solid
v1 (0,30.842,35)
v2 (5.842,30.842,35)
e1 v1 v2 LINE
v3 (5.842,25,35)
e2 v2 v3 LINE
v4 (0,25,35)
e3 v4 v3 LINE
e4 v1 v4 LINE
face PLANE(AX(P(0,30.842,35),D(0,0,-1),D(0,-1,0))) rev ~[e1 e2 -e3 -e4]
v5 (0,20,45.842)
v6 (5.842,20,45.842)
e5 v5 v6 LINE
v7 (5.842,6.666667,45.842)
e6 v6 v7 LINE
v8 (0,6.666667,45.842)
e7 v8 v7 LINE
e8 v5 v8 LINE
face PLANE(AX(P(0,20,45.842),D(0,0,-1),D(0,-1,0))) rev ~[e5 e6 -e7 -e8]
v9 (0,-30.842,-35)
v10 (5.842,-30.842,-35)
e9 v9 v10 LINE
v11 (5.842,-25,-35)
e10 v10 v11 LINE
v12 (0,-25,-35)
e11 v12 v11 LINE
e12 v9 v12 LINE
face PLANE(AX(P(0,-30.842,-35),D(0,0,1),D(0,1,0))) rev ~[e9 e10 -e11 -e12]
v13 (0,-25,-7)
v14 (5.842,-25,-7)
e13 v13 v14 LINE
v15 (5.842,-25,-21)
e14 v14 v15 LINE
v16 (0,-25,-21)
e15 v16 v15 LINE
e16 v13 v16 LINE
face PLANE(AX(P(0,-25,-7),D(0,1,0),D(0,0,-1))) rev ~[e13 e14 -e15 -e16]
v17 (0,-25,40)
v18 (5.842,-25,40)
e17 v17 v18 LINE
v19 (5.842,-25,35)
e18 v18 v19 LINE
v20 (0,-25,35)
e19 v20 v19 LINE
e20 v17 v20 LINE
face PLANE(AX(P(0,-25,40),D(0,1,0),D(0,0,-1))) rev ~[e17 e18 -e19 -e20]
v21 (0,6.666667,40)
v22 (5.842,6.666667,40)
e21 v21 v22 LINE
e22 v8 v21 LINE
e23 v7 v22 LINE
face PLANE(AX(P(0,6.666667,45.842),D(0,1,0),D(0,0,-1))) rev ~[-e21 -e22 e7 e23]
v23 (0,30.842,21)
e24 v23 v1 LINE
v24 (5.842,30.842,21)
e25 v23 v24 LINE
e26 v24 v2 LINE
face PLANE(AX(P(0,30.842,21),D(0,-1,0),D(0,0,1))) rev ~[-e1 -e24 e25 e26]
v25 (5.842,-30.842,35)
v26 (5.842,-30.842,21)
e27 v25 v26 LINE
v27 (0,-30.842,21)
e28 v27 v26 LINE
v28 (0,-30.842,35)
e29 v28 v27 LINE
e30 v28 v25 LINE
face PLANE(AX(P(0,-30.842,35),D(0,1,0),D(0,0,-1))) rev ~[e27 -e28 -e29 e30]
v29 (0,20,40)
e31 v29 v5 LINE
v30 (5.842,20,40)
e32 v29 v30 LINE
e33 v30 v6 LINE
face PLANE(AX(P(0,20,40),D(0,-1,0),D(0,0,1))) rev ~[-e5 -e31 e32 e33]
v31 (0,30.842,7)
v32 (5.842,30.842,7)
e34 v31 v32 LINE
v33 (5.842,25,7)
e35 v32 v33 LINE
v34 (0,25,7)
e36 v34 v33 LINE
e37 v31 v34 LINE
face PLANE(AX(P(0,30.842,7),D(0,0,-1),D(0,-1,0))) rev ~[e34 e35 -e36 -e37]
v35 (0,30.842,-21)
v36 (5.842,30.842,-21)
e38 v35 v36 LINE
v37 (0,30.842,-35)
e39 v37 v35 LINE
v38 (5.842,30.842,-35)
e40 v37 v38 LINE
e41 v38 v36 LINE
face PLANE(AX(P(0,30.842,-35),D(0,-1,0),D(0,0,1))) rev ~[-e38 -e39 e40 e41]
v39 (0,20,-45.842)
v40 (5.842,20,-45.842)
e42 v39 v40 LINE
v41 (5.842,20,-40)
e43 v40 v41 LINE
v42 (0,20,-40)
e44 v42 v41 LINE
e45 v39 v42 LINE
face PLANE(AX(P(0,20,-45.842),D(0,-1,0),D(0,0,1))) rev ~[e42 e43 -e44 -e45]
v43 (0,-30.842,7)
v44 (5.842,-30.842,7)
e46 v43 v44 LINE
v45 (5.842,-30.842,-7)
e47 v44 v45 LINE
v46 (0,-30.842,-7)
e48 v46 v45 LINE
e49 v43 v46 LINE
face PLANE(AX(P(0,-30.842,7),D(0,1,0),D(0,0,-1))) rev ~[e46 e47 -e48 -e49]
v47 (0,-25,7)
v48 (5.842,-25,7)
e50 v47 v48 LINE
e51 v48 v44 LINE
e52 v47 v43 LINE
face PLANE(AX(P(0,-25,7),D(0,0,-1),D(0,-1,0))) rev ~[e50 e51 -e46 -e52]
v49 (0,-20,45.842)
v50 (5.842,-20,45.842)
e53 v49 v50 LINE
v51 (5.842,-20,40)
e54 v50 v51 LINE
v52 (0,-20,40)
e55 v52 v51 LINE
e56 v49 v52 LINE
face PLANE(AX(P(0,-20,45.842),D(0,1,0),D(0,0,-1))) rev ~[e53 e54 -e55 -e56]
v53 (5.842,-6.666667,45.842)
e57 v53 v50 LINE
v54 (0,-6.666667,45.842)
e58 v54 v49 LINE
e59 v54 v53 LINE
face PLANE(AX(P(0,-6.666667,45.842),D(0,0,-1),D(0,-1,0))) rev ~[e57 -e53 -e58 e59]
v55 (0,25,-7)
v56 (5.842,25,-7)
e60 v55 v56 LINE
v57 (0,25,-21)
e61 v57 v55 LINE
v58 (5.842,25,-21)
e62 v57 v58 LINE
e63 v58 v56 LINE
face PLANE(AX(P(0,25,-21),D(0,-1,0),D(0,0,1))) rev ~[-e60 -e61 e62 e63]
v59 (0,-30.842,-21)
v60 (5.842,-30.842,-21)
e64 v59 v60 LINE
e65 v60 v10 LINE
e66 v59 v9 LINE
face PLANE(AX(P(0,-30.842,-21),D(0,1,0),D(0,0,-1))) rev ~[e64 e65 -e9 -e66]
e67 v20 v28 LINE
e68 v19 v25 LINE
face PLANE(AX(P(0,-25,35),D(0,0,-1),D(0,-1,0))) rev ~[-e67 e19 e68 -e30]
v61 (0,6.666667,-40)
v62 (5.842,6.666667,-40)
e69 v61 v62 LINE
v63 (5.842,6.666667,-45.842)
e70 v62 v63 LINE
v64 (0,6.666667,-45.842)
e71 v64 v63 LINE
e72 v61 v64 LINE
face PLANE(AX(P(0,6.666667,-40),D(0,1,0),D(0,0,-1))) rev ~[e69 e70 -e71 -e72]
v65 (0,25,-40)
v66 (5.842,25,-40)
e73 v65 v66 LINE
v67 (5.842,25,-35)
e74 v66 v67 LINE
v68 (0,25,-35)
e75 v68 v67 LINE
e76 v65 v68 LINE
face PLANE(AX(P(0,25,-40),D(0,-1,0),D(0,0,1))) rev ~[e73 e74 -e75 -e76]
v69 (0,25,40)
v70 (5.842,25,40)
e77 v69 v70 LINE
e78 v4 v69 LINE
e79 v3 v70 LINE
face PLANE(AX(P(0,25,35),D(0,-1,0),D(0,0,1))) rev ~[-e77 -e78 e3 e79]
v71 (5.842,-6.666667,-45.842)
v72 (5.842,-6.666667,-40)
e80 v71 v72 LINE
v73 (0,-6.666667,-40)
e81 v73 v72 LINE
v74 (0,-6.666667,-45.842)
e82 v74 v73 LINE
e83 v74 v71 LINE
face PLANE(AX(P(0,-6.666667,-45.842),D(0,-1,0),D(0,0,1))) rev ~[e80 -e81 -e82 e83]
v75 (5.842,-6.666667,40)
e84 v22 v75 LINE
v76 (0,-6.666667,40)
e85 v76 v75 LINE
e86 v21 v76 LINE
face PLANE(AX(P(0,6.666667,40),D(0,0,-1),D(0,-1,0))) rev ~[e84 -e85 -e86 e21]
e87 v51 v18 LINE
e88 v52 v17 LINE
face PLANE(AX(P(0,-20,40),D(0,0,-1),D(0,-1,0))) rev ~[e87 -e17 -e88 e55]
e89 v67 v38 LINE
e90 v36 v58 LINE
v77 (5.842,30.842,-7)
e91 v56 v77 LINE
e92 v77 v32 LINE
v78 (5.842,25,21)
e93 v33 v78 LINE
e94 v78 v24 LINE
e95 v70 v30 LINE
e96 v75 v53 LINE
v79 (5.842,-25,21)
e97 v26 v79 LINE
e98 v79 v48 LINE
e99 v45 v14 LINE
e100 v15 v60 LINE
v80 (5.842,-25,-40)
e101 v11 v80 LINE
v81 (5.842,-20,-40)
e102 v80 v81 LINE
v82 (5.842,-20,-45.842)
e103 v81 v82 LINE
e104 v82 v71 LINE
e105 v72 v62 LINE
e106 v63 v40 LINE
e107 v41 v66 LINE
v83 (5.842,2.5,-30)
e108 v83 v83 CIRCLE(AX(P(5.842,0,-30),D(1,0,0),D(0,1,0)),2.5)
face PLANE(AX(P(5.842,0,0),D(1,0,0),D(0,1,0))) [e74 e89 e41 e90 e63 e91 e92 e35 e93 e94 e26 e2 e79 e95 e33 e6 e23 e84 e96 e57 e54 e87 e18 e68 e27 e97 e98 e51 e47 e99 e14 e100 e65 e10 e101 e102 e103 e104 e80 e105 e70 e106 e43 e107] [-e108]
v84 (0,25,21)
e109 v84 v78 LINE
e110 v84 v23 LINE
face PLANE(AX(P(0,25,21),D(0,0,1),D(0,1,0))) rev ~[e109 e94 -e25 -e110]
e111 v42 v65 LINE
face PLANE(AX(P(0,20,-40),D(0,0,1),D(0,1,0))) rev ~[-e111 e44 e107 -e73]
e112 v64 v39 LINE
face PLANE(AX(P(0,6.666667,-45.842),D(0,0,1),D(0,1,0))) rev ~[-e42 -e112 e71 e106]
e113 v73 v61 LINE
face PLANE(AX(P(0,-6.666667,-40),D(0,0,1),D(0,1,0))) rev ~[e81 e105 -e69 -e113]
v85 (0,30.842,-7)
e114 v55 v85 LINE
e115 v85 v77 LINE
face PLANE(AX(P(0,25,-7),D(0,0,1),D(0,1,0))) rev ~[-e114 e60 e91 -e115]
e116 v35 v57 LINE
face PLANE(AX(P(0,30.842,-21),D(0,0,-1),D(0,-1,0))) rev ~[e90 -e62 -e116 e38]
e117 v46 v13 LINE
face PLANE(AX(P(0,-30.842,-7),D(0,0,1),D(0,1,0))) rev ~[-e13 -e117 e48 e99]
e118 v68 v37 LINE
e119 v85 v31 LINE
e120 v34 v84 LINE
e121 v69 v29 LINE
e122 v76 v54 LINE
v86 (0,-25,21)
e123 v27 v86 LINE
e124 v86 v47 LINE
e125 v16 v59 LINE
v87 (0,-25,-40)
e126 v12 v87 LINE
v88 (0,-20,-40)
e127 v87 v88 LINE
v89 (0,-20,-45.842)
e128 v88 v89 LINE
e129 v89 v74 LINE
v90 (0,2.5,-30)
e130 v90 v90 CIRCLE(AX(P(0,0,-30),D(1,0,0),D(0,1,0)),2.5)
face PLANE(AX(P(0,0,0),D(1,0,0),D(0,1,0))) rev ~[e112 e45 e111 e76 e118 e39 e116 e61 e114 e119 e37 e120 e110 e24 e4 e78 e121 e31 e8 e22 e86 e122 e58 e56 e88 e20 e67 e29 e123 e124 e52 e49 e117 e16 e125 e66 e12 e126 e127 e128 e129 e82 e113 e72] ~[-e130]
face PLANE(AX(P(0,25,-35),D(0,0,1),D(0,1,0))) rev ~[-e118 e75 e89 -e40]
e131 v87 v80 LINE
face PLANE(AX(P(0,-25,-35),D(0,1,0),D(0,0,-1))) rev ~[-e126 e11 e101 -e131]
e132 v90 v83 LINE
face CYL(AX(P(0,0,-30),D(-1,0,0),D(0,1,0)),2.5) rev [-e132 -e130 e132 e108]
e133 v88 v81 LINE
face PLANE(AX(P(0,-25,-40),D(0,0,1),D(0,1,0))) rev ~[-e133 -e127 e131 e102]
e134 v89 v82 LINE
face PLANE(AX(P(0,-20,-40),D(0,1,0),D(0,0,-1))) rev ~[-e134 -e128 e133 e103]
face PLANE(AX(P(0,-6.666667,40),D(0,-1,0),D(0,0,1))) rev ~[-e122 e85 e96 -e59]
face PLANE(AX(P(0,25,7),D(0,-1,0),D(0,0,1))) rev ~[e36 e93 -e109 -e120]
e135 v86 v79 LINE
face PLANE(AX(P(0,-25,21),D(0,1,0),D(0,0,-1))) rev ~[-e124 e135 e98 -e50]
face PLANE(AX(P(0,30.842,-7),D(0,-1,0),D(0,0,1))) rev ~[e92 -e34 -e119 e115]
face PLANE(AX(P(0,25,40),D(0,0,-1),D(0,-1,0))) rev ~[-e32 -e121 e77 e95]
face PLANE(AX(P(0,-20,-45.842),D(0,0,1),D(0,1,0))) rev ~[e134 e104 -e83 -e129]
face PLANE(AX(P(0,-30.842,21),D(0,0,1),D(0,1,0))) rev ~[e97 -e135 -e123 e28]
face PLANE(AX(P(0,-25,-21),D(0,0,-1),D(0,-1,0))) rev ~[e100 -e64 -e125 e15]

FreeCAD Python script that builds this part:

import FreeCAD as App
import Part
import Sketcher
from FreeCAD import Vector


def add_polygon(sketch, points):
    """Adds a closed chain of lines whose ends are joined by coincident constraints."""
    first, n = sketch.GeometryCount, len(points)
    for a, b in zip(points, points[1:] + points[:1]):
        sketch.addGeometry(Part.LineSegment(App.Vector(*a, 0), App.Vector(*b, 0)), False)
    for i in range(n):
        sketch.addConstraint(Sketcher.Constraint("Coincident", first + i, 2, first + (i + 1) % n, 1))

doc = App.newDocument("Part")
body = doc.addObject("PartDesign::Body", "Body")

# Sketch on YZ plane
sketch1 = doc.addObject("Sketcher::SketchObject", "Sketch")
body.addObject(sketch1)
sketch1.AttachmentSupport = (doc.YZ_Plane, [""])
sketch1.MapMode = "FlatFace"
add_polygon(sketch1, [(-25, -35), (-25, -40), (-20, -40), (-20, -45.8), (-6.7, -45.8), (-6.7, -40), (6.7, -40), (6.7, -45.8), (20, -45.8), (20, -40), (25, -40), (25, -35), (30.8, -35), (30.8, -21), (25, -21), (25, -7), (30.8, -7), (30.8, 7), (25, 7), (25, 21), (30.8, 21), (30.8, 35), (25, 35), (25, 40), (20, 40), (20, 45.8), (6.7, 45.8), (6.7, 40), (-6.7, 40), (-6.7, 45.8), (-20, 45.8), (-20, 40), (-25, 40), (-25, 35), (-30.8, 35), (-30.8, 21), (-25, 21), (-25, 7), (-30.8, 7), (-30.8, -7), (-25, -7), (-25, -21), (-30.8, -21), (-30.8, -35)])  # lines 0-43
sketch1.addGeometry(Part.Circle(Vector(0, -30, 0), Vector(0, 0, 1), 2.5), False)  # 44
sketch1.addConstraint(Sketcher.Constraint("Vertical", 0))
sketch1.addConstraint(Sketcher.Constraint("Horizontal", 1))
sketch1.addConstraint(Sketcher.Constraint("Vertical", 2))
sketch1.addConstraint(Sketcher.Constraint("Horizontal", 3))
sketch1.addConstraint(Sketcher.Constraint("Vertical", 4))
sketch1.addConstraint(Sketcher.Constraint("Horizontal", 5))
sketch1.addConstraint(Sketcher.Constraint("Vertical", 6))
sketch1.addConstraint(Sketcher.Constraint("Horizontal", 7))
sketch1.addConstraint(Sketcher.Constraint("Vertical", 8))
sketch1.addConstraint(Sketcher.Constraint("Horizontal", 9))
sketch1.addConstraint(Sketcher.Constraint("Vertical", 10))
sketch1.addConstraint(Sketcher.Constraint("Horizontal", 11))
sketch1.addConstraint(Sketcher.Constraint("Vertical", 12))
sketch1.addConstraint(Sketcher.Constraint("Horizontal", 13))
sketch1.addConstraint(Sketcher.Constraint("Vertical", 14))
sketch1.addConstraint(Sketcher.Constraint("Horizontal", 15))
sketch1.addConstraint(Sketcher.Constraint("Vertical", 16))
sketch1.addConstraint(Sketcher.Constraint("Horizontal", 17))
sketch1.addConstraint(Sketcher.Constraint("Vertical", 18))
sketch1.addConstraint(Sketcher.Constraint("Horizontal", 19))
sketch1.addConstraint(Sketcher.Constraint("Vertical", 20))
sketch1.addConstraint(Sketcher.Constraint("Horizontal", 21))
sketch1.addConstraint(Sketcher.Constraint("Vertical", 22))
sketch1.addConstraint(Sketcher.Constraint("Horizontal", 23))
sketch1.addConstraint(Sketcher.Constraint("Vertical", 24))
sketch1.addConstraint(Sketcher.Constraint("Horizontal", 25))
sketch1.addConstraint(Sketcher.Constraint("Vertical", 26))
sketch1.addConstraint(Sketcher.Constraint("Horizontal", 27))
sketch1.addConstraint(Sketcher.Constraint("Vertical", 28))
sketch1.addConstraint(Sketcher.Constraint("Horizontal", 29))
sketch1.addConstraint(Sketcher.Constraint("Vertical", 30))
sketch1.addConstraint(Sketcher.Constraint("Horizontal", 31))
sketch1.addConstraint(Sketcher.Constraint("Vertical", 32))
sketch1.addConstraint(Sketcher.Constraint("Horizontal", 33))
sketch1.addConstraint(Sketcher.Constraint("Vertical", 34))
sketch1.addConstraint(Sketcher.Constraint("Horizontal", 35))
sketch1.addConstraint(Sketcher.Constraint("Vertical", 36))
sketch1.addConstraint(Sketcher.Constraint("Horizontal", 37))
sketch1.addConstraint(Sketcher.Constraint("Vertical", 38))
sketch1.addConstraint(Sketcher.Constraint("Horizontal", 39))
sketch1.addConstraint(Sketcher.Constraint("Vertical", 40))
sketch1.addConstraint(Sketcher.Constraint("Horizontal", 41))
sketch1.addConstraint(Sketcher.Constraint("Vertical", 42))
sketch1.addConstraint(Sketcher.Constraint("Horizontal", 43))
sketch1.addConstraint(Sketcher.Constraint("Symmetric", 0, 2, 22, 2, -1, 1))
sketch1.addConstraint(Sketcher.Constraint("Symmetric", 2, 2, 24, 2, -1, 1))
sketch1.addConstraint(Sketcher.Constraint("Symmetric", 4, 2, 26, 2, -1, 1))
sketch1.addConstraint(Sketcher.Constraint("Symmetric", 6, 2, 28, 2, -1, 1))
sketch1.addConstraint(Sketcher.Constraint("Symmetric", 8, 2, 30, 2, -1, 1))
sketch1.addConstraint(Sketcher.Constraint("Symmetric", 10, 2, 32, 2, -1, 1))
sketch1.addConstraint(Sketcher.Constraint("Symmetric", 12, 2, 34, 2, -1, 1))
sketch1.addConstraint(Sketcher.Constraint("Symmetric", 14, 2, 36, 2, -1, 1))
sketch1.addConstraint(Sketcher.Constraint("Symmetric", 16, 2, 38, 2, -1, 1))
sketch1.addConstraint(Sketcher.Constraint("Symmetric", 18, 2, 40, 2, -1, 1))
sketch1.addConstraint(Sketcher.Constraint("Symmetric", 20, 2, 42, 2, -1, 1))
sketch1.addConstraint(Sketcher.Constraint("Symmetric", 3, 2, 6, 2, -2))
sketch1.addConstraint(Sketcher.Constraint("Symmetric", 1, 2, 8, 2, -2))
sketch1.addConstraint(Sketcher.Constraint("Symmetric", 21, 2, 32, 2, -2))
sketch1.addConstraint(Sketcher.Constraint("Symmetric", 19, 2, 34, 2, -2))
sketch1.addConstraint(Sketcher.Constraint("Symmetric", 17, 2, 36, 2, -2))
sketch1.addConstraint(Sketcher.Constraint("PointOnObject", 44, 3, -2))
sketch1.addConstraint(Sketcher.Constraint("Horizontal", 1, 2, 4, 2))
sketch1.addConstraint(Sketcher.Constraint("Vertical", 10, 2, 13, 2))
sketch1.addConstraint(Sketcher.Constraint("Vertical", 12, 2, 15, 2))
sketch1.addConstraint(Sketcher.Constraint("Equal", 3, 5))
sketch1.addConstraint(Sketcher.Constraint("Equal", 31, 0))
sketch1.addConstraint(Sketcher.Constraint("Equal", 43, 2))
sketch1.addConstraint(Sketcher.Constraint("Equal", 12, 14))
sketch1.addConstraint(Sketcher.Constraint("Equal", 14, 16))
sketch1.addConstraint(Sketcher.Constraint("Diameter", 44, 5.0))
sketch1.addConstraint(Sketcher.Constraint("DistanceX", 1, 1, 1, 2, 5.0))
sketch1.addConstraint(Sketcher.Constraint("DistanceY", 12, 1, 12, 2, 14.0))
sketch1.addConstraint(Sketcher.Constraint("DistanceY", 44, 3, -1, 1, 30.0))
sketch1.addConstraint(Sketcher.Constraint("DistanceX", 0, 2, -1, 1, 25.0))
sketch1.addConstraint(Sketcher.Constraint("DistanceX", 11, 1, 11, 2, 5.842))
pad1 = doc.addObject("PartDesign::Pad", "Pad")
body.addObject(pad1)
pad1.Profile = sketch1
pad1.Length = 5.842

doc.recompute()
